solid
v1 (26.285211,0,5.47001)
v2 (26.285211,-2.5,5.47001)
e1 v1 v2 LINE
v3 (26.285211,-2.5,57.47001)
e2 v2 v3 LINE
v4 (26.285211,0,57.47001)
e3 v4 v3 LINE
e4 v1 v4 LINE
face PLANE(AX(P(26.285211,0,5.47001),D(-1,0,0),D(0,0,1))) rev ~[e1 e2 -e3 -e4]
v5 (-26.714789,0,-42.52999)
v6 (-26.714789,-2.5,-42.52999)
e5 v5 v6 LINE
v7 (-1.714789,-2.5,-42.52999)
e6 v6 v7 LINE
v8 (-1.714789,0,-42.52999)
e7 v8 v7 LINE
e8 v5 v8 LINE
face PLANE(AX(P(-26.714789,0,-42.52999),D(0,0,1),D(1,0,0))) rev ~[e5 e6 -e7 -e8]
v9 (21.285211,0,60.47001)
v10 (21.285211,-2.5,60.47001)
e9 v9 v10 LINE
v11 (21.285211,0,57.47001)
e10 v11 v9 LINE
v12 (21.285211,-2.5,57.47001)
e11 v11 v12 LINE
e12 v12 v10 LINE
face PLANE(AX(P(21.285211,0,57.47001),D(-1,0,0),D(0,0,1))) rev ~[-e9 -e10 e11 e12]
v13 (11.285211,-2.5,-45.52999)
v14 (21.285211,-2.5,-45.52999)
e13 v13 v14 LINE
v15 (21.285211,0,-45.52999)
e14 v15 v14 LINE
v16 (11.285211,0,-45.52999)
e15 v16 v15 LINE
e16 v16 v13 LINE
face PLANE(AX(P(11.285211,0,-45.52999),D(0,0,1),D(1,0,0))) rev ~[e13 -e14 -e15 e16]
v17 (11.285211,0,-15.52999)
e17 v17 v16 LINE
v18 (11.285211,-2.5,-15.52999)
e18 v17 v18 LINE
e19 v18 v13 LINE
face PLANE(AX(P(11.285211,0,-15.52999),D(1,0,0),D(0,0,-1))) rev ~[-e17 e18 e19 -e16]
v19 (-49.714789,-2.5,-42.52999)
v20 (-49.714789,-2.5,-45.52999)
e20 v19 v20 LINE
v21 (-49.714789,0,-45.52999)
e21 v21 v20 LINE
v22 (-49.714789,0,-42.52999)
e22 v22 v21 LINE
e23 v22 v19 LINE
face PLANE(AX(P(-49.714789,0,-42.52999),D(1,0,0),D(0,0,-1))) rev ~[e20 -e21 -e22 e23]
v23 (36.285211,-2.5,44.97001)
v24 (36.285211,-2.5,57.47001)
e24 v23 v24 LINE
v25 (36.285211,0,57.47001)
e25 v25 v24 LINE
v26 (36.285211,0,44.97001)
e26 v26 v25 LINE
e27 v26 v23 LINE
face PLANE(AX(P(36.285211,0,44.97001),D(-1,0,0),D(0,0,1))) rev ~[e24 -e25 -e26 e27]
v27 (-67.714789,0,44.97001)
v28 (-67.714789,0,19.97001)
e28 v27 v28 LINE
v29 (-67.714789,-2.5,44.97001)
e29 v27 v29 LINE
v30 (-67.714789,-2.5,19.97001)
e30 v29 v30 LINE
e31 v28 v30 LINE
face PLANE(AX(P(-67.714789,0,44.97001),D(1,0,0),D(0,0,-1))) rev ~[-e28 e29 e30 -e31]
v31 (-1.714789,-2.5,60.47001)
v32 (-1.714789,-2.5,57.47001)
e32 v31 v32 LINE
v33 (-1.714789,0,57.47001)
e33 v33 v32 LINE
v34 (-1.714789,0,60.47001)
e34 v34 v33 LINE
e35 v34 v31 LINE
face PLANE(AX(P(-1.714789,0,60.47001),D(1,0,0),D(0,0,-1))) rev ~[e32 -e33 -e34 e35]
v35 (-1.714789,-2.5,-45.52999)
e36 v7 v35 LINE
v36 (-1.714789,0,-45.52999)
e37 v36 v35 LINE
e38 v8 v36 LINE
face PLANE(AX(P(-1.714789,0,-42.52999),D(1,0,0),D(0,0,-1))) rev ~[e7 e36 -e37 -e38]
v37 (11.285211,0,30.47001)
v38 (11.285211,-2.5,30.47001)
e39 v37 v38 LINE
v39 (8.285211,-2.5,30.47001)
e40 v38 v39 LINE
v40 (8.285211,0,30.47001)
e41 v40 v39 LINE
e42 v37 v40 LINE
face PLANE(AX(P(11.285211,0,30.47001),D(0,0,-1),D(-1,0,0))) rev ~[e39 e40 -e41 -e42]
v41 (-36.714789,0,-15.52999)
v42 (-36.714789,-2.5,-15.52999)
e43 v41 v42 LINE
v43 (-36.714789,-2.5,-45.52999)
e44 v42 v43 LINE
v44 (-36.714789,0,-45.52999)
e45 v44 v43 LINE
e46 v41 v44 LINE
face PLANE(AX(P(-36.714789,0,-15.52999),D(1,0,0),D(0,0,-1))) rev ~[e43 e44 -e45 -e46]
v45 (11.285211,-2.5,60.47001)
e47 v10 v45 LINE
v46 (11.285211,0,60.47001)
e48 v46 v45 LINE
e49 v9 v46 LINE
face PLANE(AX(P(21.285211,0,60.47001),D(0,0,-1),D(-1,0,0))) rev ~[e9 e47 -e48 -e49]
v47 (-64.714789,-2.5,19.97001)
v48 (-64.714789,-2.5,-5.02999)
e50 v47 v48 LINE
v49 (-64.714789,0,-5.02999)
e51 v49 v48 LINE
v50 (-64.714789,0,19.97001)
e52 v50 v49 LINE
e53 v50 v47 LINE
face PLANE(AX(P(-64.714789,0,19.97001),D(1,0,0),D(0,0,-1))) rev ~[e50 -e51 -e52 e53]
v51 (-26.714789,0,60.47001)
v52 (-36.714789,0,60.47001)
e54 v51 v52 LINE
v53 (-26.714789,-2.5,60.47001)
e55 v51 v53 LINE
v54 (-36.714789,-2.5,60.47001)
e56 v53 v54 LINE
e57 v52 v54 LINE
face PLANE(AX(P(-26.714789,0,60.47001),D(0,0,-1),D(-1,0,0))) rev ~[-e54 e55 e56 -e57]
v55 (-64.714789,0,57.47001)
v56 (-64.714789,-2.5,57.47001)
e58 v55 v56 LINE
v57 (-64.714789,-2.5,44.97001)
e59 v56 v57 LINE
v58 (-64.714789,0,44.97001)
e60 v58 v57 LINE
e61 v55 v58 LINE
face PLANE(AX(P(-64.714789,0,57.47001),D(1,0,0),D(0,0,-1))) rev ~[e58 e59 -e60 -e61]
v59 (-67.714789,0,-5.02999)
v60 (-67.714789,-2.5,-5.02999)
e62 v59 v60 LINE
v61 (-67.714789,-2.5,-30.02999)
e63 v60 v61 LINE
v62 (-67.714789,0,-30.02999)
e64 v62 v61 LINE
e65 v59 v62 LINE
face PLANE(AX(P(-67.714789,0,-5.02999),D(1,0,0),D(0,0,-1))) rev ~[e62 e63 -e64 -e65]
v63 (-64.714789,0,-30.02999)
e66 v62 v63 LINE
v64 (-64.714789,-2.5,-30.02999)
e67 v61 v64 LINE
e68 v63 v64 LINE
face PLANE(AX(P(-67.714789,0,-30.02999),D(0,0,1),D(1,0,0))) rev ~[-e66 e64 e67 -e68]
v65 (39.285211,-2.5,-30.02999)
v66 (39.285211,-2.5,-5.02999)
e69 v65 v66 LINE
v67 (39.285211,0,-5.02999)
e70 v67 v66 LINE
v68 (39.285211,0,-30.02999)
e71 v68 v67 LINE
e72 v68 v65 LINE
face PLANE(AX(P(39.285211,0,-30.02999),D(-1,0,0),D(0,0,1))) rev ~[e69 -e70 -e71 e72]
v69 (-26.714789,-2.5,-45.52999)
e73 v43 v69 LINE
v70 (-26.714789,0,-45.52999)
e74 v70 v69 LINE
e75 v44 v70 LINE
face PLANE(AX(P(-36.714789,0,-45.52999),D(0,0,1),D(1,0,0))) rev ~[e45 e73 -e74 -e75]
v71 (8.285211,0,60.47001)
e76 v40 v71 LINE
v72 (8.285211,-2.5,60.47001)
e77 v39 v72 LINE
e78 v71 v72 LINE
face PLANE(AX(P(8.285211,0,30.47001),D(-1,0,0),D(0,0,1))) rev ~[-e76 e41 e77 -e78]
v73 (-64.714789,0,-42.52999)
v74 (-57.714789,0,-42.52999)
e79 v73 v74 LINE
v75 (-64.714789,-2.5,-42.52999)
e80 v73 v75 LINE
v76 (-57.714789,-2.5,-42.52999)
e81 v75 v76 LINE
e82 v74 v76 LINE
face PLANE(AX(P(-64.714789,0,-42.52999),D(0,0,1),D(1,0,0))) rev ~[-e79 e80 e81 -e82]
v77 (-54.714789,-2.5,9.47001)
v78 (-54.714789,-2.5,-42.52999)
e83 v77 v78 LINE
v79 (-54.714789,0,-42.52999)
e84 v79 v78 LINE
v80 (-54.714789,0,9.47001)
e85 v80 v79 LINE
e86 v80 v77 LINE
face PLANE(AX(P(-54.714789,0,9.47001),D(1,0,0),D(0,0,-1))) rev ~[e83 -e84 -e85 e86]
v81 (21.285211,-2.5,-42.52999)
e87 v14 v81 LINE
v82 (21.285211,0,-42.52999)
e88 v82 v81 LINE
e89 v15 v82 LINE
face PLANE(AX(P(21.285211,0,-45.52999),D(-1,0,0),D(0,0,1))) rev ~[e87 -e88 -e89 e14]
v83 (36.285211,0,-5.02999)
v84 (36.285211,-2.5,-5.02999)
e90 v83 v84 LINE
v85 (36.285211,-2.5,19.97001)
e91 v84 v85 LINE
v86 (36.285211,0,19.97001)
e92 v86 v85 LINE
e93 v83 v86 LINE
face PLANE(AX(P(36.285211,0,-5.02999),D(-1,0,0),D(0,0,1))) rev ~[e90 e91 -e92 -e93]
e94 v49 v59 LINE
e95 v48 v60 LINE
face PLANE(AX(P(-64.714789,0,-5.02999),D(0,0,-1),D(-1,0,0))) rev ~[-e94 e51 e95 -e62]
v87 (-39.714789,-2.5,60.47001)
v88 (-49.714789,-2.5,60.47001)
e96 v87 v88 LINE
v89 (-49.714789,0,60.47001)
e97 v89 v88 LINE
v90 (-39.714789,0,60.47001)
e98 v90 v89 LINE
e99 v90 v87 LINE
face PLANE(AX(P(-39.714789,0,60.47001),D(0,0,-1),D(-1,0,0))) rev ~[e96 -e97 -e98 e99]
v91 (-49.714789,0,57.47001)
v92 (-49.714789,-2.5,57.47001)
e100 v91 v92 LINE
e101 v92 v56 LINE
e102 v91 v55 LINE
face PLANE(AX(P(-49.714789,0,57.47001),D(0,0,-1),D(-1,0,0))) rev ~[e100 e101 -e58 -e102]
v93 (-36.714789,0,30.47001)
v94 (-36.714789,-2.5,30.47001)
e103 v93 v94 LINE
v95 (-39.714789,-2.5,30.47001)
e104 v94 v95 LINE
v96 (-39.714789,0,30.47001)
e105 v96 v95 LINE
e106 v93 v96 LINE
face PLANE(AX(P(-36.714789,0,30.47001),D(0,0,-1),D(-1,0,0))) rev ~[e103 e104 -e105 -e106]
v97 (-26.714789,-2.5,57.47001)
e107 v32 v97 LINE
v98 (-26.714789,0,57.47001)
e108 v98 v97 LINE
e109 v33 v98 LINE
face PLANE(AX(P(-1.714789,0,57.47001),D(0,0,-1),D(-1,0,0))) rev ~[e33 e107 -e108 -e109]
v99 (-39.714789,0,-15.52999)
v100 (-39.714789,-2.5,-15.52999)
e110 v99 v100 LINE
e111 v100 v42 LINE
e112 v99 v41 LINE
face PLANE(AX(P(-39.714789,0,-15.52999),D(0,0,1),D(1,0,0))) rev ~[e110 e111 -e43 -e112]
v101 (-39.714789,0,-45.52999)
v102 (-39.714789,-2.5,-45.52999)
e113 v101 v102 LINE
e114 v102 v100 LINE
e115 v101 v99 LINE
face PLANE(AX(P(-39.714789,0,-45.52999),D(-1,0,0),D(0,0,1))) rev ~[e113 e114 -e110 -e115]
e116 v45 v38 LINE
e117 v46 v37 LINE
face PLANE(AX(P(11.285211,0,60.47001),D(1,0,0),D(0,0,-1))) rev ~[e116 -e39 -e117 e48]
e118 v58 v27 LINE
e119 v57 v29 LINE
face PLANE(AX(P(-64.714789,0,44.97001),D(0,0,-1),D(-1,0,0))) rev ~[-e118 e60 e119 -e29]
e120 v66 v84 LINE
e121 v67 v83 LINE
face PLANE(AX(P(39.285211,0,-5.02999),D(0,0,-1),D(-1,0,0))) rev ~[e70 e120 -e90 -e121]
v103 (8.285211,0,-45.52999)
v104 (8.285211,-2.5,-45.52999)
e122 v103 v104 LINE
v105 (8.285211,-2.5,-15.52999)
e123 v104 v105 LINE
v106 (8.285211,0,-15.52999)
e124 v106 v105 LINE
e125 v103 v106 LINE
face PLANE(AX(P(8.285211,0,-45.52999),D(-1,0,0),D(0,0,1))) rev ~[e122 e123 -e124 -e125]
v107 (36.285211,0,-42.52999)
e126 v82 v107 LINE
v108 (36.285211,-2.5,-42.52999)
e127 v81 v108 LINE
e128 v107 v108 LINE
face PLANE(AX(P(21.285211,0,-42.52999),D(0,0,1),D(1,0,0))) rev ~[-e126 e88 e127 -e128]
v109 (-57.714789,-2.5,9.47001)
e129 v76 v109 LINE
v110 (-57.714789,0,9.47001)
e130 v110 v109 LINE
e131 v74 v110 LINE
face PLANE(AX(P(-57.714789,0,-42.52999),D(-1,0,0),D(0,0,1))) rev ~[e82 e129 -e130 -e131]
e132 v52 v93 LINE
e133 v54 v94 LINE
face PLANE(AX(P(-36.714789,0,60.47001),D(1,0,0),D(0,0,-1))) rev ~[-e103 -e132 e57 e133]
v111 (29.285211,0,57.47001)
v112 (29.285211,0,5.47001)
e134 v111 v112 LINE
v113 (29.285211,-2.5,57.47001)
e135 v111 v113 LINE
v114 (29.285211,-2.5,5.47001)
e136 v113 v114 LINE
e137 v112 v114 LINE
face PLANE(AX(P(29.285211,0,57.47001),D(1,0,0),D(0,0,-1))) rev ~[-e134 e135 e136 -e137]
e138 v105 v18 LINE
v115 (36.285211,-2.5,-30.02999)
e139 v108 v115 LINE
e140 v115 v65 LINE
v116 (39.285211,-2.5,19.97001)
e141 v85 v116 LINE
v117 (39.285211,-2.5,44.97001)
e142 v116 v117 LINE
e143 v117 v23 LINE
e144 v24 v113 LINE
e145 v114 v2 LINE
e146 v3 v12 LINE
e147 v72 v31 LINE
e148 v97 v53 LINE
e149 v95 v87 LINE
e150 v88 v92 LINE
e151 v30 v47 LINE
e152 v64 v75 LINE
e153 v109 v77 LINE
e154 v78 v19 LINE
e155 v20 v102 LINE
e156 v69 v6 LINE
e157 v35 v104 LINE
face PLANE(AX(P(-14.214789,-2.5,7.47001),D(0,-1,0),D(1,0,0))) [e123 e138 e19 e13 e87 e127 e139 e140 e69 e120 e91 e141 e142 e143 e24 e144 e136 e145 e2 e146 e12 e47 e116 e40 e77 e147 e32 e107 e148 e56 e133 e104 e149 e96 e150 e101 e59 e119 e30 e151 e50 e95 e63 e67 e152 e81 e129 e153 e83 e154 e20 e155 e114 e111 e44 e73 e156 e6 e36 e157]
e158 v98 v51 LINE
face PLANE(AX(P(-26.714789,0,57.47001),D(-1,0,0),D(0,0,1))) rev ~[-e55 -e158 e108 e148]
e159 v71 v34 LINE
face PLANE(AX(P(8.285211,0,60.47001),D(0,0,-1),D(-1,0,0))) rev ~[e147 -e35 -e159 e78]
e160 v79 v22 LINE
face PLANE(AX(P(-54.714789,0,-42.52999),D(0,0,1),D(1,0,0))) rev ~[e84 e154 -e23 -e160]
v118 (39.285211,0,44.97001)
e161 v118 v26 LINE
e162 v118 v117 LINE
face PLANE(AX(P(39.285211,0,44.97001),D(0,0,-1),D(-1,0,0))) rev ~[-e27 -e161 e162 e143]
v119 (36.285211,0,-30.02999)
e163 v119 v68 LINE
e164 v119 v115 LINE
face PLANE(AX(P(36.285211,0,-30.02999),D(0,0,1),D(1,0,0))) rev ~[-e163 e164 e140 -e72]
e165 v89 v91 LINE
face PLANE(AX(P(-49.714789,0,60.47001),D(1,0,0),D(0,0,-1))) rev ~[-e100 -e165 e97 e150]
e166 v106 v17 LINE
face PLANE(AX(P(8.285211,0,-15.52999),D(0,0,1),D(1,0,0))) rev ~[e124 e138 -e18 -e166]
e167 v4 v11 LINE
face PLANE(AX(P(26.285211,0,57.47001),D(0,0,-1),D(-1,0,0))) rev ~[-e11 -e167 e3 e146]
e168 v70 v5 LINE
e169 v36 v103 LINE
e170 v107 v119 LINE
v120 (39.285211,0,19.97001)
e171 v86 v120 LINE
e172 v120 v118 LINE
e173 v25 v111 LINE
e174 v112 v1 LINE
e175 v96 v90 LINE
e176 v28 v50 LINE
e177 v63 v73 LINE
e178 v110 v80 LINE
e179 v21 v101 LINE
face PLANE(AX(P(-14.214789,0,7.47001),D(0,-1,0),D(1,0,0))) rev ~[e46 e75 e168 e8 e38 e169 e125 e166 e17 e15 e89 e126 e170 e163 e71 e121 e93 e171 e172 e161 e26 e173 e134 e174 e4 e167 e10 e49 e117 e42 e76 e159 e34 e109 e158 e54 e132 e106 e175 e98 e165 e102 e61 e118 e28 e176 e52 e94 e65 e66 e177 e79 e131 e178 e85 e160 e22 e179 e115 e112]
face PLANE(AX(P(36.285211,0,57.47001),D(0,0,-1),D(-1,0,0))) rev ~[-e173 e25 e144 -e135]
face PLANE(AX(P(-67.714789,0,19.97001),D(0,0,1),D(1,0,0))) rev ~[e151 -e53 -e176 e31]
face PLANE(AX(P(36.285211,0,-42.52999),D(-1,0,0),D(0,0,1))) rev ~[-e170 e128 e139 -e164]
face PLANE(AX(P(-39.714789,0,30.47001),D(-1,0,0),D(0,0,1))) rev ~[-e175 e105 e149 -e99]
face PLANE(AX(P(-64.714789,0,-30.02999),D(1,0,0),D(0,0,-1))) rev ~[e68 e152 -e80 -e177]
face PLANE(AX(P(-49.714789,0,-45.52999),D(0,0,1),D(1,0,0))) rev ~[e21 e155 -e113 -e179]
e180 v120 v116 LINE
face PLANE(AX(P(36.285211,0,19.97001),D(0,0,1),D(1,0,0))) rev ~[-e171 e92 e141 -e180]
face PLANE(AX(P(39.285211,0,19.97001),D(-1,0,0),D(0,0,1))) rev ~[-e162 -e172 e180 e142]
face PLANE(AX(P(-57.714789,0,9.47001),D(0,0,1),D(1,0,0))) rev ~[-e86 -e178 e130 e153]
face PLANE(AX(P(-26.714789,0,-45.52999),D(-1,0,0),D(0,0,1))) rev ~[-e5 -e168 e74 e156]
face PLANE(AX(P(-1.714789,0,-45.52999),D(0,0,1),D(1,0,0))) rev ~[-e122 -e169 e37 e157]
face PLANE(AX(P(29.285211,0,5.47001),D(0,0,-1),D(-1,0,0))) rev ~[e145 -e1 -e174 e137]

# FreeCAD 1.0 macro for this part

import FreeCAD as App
import Part
import Sketcher

V = App.Vector
Q = App.Units.Quantity


def add_polygon(sketch, points):
    """Adds a closed chain of lines whose ends are joined by coincident constraints."""
    first, n = sketch.GeometryCount, len(points)
    for a, b in zip(points, points[1:] + points[:1]):
        sketch.addGeometry(Part.LineSegment(App.Vector(*a, 0), App.Vector(*b, 0)), False)
    for i in range(n):
        sketch.addConstraint(Sketcher.Constraint("Coincident", first + i, 2, first + (i + 1) % n, 1))

doc = App.newDocument("Part")
params = doc.addObject("Spreadsheet::Sheet", "Params")
for row, (alias, value) in enumerate([
    ("sketch1_width", "7 mm"),
    ("sketch1_width2", "3 mm"),
    ("sketch1_width3", "5 mm"),
    ("sketch1_width4", "10 mm"),
    ("sketch1_width5", "25 mm"),
    ("pad1_length", "2.5 mm"),
], start=1):
    params.set(f"A{row}", alias)
    params.set(f"B{row}", "=" + value)
    params.setAlias(f"B{row}", alias)

body = doc.addObject("PartDesign::Body", "Body")

# Sketch on XZ plane
sketch1 = doc.addObject("Sketcher::SketchObject", "Sketch")
body.addObject(sketch1)
sketch1.AttachmentSupport = (doc.XZ_Plane, [""])
sketch1.MapMode = "FlatFace"
add_polygon(sketch1, [(-64.714789, -30.02999), (-64.714789, -42.52999), (-57.714789, -42.52999), (-57.714789, 9.47001), (-54.714789, 9.47001), (-54.714789, -42.52999), (-49.714789, -42.52999), (-49.714789, -45.52999), (-39.714789, -45.52999), (-39.714789, -15.52999), (-36.714789, -15.52999), (-36.714789, -45.52999), (-26.714789, -45.52999), (-26.714789, -42.52999), (-1.714789, -42.52999), (-1.714789, -45.52999), (8.285211, -45.52999), (8.285211, -15.52999), (11.285211, -15.52999), (11.285211, -45.52999), (21.285211, -45.52999), (21.285211, -42.52999), (36.285211, -42.52999), (36.285211, -30.02999), (39.285211, -30.02999), (39.285211, -5.02999), (36.285211, -5.02999), (36.285211, 19.97001), (39.285211, 19.97001), (39.285211, 44.97001), (36.285211, 44.97001), (36.285211, 57.47001), (29.285211, 57.47001), (29.285211, 5.47001), (26.285211, 5.47001), (26.285211, 57.47001), (21.285211, 57.47001), (21.285211, 60.47001), (11.285211, 60.47001), (11.285211, 30.47001), (8.285211, 30.47001), (8.285211, 60.47001), (-1.714789, 60.47001), (-1.714789, 57.47001), (-26.714789, 57.47001), (-26.714789, 60.47001), (-36.714789, 60.47001), (-36.714789, 30.47001), (-39.714789, 30.47001), (-39.714789, 60.47001), (-49.714789, 60.47001), (-49.714789, 57.47001), (-64.714789, 57.47001), (-64.714789, 44.97001), (-67.714789, 44.97001), (-67.714789, 19.97001), (-64.714789, 19.97001), (-64.714789, -5.02999), (-67.714789, -5.02999), (-67.714789, -30.02999)])  # lines 0-59
sketch1.addConstraint([
    Sketcher.Constraint("Vertical", 0),
    Sketcher.Constraint("Horizontal", 1),
    Sketcher.Constraint("Vertical", 2),
    Sketcher.Constraint("Horizontal", 3),
    Sketcher.Constraint("Vertical", 4),
    Sketcher.Constraint("Horizontal", 5),
    Sketcher.Constraint("Vertical", 6),
    Sketcher.Constraint("Horizontal", 7),
    Sketcher.Constraint("Vertical", 8),
    Sketcher.Constraint("Horizontal", 9),
    Sketcher.Constraint("Vertical", 10),
    Sketcher.Constraint("Horizontal", 11),
    Sketcher.Constraint("Vertical", 12),
    Sketcher.Constraint("Horizontal", 13),
    Sketcher.Constraint("Vertical", 14),
    Sketcher.Constraint("Horizontal", 15),
    Sketcher.Constraint("Vertical", 16),
    Sketcher.Constraint("Horizontal", 17),
    Sketcher.Constraint("Vertical", 18),
    Sketcher.Constraint("Horizontal", 19),
    Sketcher.Constraint("Vertical", 20),
    Sketcher.Constraint("Horizontal", 21),
    Sketcher.Constraint("Vertical", 22),
    Sketcher.Constraint("Horizontal", 23),
    Sketcher.Constraint("Vertical", 24),
    Sketcher.Constraint("Horizontal", 25),
    Sketcher.Constraint("Vertical", 26),
    Sketcher.Constraint("Horizontal", 27),
    Sketcher.Constraint("Vertical", 28),
    Sketcher.Constraint("Horizontal", 29),
    Sketcher.Constraint("Vertical", 30),
    Sketcher.Constraint("Horizontal", 31),
    Sketcher.Constraint("Vertical", 32),
    Sketcher.Constraint("Horizontal", 33),
    Sketcher.Constraint("Vertical", 34),
    Sketcher.Constraint("Horizontal", 35),
    Sketcher.Constraint("Vertical", 36),
    Sketcher.Constraint("Horizontal", 37),
    Sketcher.Constraint("Vertical", 38),
    Sketcher.Constraint("Horizontal", 39),
    Sketcher.Constraint("Vertical", 40),
    Sketcher.Constraint("Horizontal", 41),
    Sketcher.Constraint("Vertical", 42),
    Sketcher.Constraint("Horizontal", 43),
    Sketcher.Constraint("Vertical", 44),
    Sketcher.Constraint("Horizontal", 45),
    Sketcher.Constraint("Vertical", 46),
    Sketcher.Constraint("Horizontal", 47),
    Sketcher.Constraint("Vertical", 48),
    Sketcher.Constraint("Horizontal", 49),
    Sketcher.Constraint("Vertical", 50),
    Sketcher.Constraint("Horizontal", 51),
    Sketcher.Constraint("Vertical", 52),
    Sketcher.Constraint("Horizontal", 53),
    Sketcher.Constraint("Vertical", 54),
    Sketcher.Constraint("Horizontal", 55),
    Sketcher.Constraint("Vertical", 56),
    Sketcher.Constraint("Horizontal", 57),
    Sketcher.Constraint("Vertical", 58),
    Sketcher.Constraint("Horizontal", 59),
    Sketcher.Constraint("Horizontal", 1, 2, 4, 2),
    Sketcher.Constraint("Horizontal", 7, 2, 10, 2),
    Sketcher.Constraint("Horizontal", 5, 2, 12, 2),
    Sketcher.Constraint("Horizontal", 11, 2, 14, 2),
    Sketcher.Constraint("Horizontal", 9, 2, 16, 2),
    Sketcher.Constraint("Horizontal", 15, 2, 18, 2),
    Sketcher.Constraint("Horizontal", 13, 2, 20, 2),
    Sketcher.Constraint("Horizontal", 31, 2, 34, 2),
    Sketcher.Constraint("Horizontal", 37, 2, 40, 2),
    Sketcher.Constraint("Horizontal", 35, 2, 42, 2),
    Sketcher.Constraint("Horizontal", 41, 2, 44, 2),
    Sketcher.Constraint("Horizontal", 39, 2, 46, 2),
    Sketcher.Constraint("Horizontal", 45, 2, 48, 2),
    Sketcher.Constraint("Horizontal", 43, 2, 50, 2),
    Sketcher.Constraint("Horizontal", 29, 2, 52, 2),
    Sketcher.Constraint("Horizontal", 27, 2, 54, 2),
    Sketcher.Constraint("Horizontal", 25, 2, 56, 2),
    Sketcher.Constraint("Horizontal", 23, 2, 58, 2),
    Sketcher.Constraint("Vertical", 22, 2, 25, 2),
    Sketcher.Constraint("Vertical", 24, 2, 27, 2),
    Sketcher.Constraint("Vertical", 26, 2, 29, 2),
    Sketcher.Constraint("Vertical", 20, 2, 35, 2),
    Sketcher.Constraint("Vertical", 18, 2, 37, 2),
    Sketcher.Constraint("Vertical", 16, 2, 39, 2),
    Sketcher.Constraint("Vertical", 14, 2, 41, 2),
    Sketcher.Constraint("Vertical", 12, 2, 43, 2),
    Sketcher.Constraint("Vertical", 10, 2, 45, 2),
    Sketcher.Constraint("Vertical", 8, 2, 47, 2),
    Sketcher.Constraint("Vertical", 6, 2, 49, 2),
    Sketcher.Constraint("Vertical", 0, 2, 51, 2),
    Sketcher.Constraint("Vertical", 52, 2, 55, 2),
    Sketcher.Constraint("Vertical", 54, 2, 57, 2),
    Sketcher.Constraint("Equal", 3, 9),
    Sketcher.Constraint("Equal", 7, 11),
    Sketcher.Constraint("Equal", 11, 15),
    Sketcher.Constraint("Equal", 9, 17),
    Sketcher.Constraint("Equal", 15, 19),
    Sketcher.Constraint("Equal", 17, 23),
    Sketcher.Constraint("Equal", 1, 31),
    Sketcher.Constraint("Equal", 29, 33),
    Sketcher.Constraint("Equal", 5, 35),
    Sketcher.Constraint("Equal", 47, 53),
    Sketcher.Constraint("Equal", 59, 6),
    Sketcher.Constraint("Equal", 43, 24),
    Sketcher.Constraint("Equal", 24, 26),
    Sketcher.Constraint("Equal", 26, 28),
    Sketcher.Constraint("Equal", 22, 30),
    Sketcher.Constraint("Equal", 4, 32),
    Sketcher.Constraint("Equal", 20, 36),
    Sketcher.Constraint("Equal", 18, 38),
    Sketcher.Constraint("DistanceX", 1, 1, 1, 2, Q("7 mm")),
    Sketcher.Constraint("DistanceX", 3, 1, 3, 2, Q("3 mm")),
    Sketcher.Constraint("DistanceX", 5, 1, 5, 2, Q("5 mm")),
    Sketcher.Constraint("DistanceX", 7, 1, 7, 2, Q("10 mm")),
    Sketcher.Constraint("DistanceX", 13, 1, 13, 2, Q("25 mm")),
    Sketcher.Constraint("DistanceY", 2, 1, 2, 2, Q("52 mm")),
    Sketcher.Constraint("DistanceY", 8, 1, 8, 2, Q("30 mm")),
    Sketcher.Constraint("DistanceY", 0, 2, 0, 1, Q("12.5 mm")),
    Sketcher.Constraint("DistanceX", 0, 2, -1, 1, Q("64.714789 mm")),
    Sketcher.Constraint("DistanceY", 0, 2, -1, 1, Q("42.52999 mm")),
])
sketch1.setExpression("Constraints[170]", "Params.sketch1_width")
sketch1.setExpression("Constraints[171]", "Params.sketch1_width2")
sketch1.setExpression("Constraints[172]", "Params.sketch1_width3")
sketch1.setExpression("Constraints[173]", "Params.sketch1_width4")
sketch1.setExpression("Constraints[174]", "Params.sketch1_width5")
pad1 = doc.addObject("PartDesign::Pad", "Pad")
body.addObject(pad1)
pad1.Profile = sketch1
pad1.setExpression("Length", "Params.pad1_length")

doc.recompute()
